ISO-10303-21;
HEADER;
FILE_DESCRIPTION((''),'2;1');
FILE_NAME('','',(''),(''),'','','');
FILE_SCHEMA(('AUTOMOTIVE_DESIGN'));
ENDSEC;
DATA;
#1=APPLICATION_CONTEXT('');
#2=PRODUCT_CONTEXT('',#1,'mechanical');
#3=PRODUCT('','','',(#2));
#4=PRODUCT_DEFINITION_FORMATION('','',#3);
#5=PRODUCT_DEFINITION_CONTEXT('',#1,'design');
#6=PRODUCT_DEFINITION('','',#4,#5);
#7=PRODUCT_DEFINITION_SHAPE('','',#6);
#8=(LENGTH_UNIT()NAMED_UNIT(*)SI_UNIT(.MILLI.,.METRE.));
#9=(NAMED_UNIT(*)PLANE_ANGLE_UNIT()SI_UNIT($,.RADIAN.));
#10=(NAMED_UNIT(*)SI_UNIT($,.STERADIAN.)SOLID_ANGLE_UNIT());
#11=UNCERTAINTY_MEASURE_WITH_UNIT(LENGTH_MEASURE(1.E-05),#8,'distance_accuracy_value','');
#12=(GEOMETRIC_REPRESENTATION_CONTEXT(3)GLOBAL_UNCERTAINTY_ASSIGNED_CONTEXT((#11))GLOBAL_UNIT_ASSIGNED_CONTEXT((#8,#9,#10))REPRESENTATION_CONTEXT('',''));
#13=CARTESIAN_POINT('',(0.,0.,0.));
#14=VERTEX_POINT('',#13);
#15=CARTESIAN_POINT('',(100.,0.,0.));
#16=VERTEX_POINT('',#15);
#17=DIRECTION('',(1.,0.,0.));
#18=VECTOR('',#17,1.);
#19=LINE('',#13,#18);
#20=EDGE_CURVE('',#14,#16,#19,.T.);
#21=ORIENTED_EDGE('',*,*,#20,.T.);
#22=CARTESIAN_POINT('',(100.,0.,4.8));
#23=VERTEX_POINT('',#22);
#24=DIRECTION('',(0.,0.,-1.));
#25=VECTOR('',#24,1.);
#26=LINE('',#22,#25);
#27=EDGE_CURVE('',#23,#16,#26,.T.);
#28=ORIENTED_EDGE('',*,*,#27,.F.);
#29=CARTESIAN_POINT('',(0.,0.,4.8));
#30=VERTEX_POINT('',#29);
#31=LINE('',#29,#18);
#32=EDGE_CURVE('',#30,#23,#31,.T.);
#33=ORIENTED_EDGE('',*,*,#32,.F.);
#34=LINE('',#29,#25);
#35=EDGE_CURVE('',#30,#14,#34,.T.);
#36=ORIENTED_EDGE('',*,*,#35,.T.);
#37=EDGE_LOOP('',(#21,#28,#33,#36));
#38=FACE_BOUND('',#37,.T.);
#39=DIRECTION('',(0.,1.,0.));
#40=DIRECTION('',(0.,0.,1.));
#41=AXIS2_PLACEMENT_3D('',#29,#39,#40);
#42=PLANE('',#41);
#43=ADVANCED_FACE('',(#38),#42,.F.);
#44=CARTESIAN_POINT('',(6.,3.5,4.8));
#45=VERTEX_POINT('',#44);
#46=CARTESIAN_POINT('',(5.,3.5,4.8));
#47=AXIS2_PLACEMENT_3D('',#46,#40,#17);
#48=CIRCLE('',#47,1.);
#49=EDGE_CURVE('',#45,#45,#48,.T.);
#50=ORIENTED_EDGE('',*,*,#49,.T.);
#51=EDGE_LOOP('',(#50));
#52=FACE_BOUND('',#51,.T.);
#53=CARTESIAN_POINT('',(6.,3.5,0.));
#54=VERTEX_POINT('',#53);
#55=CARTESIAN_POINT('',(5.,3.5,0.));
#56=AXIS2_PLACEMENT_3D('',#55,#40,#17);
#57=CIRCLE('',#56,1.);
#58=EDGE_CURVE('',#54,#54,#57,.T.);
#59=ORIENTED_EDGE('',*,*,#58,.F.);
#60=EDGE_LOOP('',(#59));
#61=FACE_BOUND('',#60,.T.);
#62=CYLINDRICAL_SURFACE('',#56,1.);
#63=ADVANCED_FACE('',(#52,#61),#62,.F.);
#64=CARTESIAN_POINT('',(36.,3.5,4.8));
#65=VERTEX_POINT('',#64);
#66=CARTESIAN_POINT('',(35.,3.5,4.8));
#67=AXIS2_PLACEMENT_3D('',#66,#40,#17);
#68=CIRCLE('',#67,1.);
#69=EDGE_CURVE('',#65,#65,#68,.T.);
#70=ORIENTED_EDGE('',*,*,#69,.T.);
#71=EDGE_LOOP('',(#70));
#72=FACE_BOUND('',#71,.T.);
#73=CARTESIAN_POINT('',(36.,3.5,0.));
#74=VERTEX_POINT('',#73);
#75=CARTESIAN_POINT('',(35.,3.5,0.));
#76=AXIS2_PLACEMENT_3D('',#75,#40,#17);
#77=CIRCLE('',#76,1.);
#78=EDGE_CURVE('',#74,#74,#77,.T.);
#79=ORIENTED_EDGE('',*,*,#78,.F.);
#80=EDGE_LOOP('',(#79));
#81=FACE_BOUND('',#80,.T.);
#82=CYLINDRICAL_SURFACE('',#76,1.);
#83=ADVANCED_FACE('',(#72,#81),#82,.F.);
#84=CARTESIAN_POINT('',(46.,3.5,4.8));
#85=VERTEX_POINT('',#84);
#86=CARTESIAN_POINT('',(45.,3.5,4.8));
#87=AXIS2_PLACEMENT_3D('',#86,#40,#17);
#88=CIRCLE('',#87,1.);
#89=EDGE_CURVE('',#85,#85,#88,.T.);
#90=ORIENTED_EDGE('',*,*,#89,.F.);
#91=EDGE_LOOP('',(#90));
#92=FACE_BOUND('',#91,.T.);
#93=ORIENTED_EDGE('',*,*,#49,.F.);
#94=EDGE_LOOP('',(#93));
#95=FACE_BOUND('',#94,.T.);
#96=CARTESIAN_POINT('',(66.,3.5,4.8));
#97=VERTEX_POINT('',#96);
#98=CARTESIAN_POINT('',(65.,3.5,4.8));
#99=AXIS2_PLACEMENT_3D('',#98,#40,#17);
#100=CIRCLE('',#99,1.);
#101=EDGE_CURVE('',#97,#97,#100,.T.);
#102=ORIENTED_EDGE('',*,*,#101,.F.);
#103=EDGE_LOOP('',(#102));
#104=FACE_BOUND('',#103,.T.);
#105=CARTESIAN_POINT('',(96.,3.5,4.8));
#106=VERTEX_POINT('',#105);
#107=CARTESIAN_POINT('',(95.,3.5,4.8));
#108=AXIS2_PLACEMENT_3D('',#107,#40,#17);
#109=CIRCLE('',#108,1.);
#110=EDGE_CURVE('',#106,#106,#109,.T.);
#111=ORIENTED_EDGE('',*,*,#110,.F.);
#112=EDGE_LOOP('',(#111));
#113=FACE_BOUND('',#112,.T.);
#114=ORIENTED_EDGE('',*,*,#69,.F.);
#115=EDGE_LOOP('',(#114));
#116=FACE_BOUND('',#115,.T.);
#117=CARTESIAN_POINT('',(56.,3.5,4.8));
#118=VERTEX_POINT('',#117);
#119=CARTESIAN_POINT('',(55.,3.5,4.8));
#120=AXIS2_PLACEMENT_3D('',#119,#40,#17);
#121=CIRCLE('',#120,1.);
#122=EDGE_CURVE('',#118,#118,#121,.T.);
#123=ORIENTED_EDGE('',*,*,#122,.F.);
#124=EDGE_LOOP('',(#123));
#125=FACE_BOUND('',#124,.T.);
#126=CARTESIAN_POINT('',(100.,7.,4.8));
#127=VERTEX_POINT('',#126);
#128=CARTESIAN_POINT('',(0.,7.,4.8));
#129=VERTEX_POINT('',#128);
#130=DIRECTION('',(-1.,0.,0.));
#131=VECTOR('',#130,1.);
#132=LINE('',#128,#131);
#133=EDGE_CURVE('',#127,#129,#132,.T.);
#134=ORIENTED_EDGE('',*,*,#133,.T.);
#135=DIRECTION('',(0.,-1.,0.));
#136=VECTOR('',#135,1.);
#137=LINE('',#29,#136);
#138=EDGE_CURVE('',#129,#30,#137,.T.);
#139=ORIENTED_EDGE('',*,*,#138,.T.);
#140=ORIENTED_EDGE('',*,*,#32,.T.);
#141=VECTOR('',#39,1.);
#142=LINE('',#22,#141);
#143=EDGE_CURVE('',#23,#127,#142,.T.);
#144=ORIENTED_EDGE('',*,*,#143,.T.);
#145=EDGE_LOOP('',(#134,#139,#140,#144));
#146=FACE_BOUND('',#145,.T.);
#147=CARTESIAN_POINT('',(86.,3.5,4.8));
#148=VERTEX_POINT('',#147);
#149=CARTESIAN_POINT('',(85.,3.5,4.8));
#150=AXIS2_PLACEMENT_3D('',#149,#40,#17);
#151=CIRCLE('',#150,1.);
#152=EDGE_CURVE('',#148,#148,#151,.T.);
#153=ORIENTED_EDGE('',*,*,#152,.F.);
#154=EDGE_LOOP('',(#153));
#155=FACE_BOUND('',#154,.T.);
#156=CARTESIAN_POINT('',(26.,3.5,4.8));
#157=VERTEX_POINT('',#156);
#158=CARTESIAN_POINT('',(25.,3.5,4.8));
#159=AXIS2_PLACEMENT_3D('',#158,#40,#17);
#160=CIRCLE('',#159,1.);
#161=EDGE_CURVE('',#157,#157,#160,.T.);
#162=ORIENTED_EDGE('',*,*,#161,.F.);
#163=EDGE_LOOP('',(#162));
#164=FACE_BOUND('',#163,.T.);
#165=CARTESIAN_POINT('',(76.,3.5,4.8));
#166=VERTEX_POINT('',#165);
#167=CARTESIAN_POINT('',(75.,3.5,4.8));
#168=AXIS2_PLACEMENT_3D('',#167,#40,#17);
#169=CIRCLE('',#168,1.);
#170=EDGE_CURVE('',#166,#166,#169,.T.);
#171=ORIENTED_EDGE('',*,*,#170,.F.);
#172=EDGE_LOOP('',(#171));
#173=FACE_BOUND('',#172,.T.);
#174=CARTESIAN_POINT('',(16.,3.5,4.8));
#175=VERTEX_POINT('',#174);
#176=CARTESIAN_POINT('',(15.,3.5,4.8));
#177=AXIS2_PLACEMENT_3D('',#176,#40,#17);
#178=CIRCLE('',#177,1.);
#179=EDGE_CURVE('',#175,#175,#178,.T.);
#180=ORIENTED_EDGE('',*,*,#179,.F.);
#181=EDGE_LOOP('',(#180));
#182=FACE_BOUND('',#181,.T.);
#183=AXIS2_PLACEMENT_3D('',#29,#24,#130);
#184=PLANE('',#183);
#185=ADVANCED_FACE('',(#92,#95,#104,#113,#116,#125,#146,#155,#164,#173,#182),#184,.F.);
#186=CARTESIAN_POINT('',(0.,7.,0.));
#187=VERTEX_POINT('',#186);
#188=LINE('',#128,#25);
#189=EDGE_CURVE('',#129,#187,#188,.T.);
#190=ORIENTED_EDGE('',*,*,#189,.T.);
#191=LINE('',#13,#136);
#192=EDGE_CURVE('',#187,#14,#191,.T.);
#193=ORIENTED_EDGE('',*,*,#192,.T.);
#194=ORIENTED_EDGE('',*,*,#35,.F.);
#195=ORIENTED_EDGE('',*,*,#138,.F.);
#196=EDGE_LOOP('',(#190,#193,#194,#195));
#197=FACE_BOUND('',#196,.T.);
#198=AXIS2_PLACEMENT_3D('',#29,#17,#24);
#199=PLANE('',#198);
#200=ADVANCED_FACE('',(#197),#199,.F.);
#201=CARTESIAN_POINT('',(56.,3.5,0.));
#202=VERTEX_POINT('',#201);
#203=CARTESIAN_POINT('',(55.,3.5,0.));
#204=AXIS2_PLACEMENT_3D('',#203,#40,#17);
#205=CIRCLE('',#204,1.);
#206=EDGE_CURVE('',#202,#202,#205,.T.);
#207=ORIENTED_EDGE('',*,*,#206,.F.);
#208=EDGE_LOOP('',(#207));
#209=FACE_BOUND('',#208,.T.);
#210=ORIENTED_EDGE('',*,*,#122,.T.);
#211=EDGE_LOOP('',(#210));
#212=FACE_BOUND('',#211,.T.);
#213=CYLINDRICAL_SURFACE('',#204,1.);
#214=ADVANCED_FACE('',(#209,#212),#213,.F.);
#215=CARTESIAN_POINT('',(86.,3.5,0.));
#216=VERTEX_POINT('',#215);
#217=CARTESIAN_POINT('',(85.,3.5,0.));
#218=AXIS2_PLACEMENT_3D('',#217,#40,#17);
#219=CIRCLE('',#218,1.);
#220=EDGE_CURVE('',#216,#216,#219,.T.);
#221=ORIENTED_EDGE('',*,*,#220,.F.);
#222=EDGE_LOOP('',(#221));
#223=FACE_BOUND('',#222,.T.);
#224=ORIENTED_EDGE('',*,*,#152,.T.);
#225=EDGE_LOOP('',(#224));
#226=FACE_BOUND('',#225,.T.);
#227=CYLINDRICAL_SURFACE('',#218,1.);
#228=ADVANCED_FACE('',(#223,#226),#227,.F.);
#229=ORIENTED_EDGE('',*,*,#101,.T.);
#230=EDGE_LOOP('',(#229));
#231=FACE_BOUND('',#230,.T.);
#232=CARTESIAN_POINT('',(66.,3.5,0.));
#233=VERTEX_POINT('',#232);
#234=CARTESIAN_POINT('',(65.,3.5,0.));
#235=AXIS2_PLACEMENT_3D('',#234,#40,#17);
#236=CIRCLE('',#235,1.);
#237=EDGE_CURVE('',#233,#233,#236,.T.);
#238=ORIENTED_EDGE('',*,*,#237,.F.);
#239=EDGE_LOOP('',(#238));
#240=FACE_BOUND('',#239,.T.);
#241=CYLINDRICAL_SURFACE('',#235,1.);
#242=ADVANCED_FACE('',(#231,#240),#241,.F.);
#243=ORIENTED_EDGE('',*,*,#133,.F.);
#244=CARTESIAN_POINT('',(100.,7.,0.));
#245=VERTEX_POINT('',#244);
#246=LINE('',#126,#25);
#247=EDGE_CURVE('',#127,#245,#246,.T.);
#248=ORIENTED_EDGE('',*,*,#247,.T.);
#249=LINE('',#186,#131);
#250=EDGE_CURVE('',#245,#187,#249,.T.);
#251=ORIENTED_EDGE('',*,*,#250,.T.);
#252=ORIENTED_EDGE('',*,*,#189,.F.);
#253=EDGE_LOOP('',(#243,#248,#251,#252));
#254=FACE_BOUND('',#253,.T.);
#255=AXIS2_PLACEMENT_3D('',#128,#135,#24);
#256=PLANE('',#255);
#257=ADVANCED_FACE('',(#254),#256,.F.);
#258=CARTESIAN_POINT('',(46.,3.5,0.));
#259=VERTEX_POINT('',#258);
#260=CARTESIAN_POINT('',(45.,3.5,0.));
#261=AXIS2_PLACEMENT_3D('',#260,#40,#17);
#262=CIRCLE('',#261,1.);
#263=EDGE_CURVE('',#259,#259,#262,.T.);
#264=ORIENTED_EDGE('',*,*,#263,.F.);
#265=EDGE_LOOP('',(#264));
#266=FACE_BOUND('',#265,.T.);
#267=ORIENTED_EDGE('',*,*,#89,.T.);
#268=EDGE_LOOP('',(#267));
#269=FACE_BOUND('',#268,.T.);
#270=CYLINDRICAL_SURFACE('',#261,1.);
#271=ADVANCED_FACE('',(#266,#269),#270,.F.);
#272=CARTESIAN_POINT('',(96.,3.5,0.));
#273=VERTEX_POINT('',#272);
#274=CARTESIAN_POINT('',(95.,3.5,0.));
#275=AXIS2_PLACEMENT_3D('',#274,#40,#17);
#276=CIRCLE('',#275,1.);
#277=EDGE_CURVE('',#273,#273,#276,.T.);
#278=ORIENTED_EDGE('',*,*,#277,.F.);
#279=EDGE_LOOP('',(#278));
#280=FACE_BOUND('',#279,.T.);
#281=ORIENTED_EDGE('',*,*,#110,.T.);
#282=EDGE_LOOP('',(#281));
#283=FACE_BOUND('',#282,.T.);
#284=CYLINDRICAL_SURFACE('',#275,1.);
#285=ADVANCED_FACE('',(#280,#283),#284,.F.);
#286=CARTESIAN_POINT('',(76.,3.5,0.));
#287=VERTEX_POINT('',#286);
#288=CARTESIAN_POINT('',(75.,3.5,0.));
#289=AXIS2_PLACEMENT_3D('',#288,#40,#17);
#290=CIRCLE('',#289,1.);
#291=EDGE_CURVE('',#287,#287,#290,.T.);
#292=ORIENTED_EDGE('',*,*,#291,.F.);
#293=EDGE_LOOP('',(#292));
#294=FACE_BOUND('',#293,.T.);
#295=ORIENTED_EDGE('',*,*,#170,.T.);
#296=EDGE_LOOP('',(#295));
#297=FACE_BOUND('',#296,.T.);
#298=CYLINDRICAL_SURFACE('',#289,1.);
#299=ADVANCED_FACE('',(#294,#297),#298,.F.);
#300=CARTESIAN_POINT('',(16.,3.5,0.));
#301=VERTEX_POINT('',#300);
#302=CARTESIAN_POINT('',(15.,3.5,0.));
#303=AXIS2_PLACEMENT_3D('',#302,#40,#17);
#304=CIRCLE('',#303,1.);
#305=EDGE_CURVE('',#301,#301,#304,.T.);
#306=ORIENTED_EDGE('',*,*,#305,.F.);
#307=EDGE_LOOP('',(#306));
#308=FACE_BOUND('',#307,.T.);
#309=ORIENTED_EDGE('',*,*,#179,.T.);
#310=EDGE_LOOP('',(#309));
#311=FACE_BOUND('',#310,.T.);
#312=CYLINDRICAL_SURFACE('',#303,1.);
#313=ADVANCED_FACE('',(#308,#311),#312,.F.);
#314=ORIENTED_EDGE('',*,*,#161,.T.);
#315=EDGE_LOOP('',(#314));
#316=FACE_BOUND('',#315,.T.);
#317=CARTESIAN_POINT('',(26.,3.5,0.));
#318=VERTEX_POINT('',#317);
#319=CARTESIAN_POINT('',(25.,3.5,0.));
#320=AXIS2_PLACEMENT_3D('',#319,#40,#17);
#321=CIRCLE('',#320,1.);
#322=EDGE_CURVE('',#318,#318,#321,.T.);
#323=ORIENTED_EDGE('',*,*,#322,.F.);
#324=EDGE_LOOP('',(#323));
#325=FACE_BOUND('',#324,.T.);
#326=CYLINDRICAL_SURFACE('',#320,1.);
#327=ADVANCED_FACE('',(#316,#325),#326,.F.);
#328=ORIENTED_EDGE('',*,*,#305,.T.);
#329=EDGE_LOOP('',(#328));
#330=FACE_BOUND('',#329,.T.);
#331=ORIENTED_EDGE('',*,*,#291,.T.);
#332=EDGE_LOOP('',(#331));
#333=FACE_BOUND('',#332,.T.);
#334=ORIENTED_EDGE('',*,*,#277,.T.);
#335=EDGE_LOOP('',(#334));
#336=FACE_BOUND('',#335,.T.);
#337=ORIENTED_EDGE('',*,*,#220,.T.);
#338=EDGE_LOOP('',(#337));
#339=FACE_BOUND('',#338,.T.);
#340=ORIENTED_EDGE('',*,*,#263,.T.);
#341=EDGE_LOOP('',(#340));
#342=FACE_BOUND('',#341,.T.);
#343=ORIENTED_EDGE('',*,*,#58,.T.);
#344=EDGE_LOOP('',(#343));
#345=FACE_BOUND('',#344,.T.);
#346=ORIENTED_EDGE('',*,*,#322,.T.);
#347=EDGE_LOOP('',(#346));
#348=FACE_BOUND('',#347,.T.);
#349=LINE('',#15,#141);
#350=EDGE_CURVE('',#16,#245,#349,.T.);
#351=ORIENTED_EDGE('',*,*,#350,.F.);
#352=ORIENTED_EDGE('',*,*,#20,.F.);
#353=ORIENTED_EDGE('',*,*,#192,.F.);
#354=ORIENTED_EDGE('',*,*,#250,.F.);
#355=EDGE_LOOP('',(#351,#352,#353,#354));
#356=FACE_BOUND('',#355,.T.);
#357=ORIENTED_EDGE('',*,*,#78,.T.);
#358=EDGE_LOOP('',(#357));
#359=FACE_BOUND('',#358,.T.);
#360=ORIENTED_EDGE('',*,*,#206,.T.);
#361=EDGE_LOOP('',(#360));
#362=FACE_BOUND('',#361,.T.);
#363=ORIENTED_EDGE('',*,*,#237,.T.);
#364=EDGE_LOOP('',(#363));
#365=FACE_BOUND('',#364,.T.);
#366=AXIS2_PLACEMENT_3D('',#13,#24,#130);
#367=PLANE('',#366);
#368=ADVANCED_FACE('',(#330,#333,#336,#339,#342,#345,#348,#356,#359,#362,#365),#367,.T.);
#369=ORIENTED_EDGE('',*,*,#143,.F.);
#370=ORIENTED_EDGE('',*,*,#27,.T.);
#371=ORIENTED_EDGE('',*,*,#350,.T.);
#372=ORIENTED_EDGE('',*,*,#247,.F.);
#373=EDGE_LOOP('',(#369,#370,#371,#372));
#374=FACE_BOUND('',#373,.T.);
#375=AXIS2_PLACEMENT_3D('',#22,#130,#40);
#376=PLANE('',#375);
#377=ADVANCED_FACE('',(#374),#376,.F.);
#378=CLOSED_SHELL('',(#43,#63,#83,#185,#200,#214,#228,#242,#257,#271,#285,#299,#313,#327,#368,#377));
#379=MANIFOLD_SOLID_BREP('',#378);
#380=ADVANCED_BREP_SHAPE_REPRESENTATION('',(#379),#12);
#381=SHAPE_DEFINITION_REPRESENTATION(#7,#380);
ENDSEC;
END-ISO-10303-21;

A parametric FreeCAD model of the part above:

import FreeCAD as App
import Part
import Sketcher
from FreeCAD import Vector
Q = App.Units.Quantity


def add_polygon(sketch, points):
    """Adds a closed chain of lines whose ends are joined by coincident constraints."""
    first, n = sketch.GeometryCount, len(points)
    for a, b in zip(points, points[1:] + points[:1]):
        sketch.addGeometry(Part.LineSegment(App.Vector(*a, 0), App.Vector(*b, 0)), False)
    for i in range(n):
        sketch.addConstraint(Sketcher.Constraint("Coincident", first + i, 2, first + (i + 1) % n, 1))

doc = App.newDocument("Part")
body = doc.addObject("PartDesign::Body", "Body")

# Sketch on XY plane
sketch1 = body.newObject("Sketcher::SketchObject", "Sketch")
sketch1.AttachmentSupport = (doc.getObject("XY_Plane"), [""])
sketch1.MapMode = "FlatFace"
add_polygon(sketch1, [(0, 7), (0, 0), (100, 0), (100, 7)])  # lines 0-3
sketch1.addConstraint(Sketcher.Constraint("Vertical", 0))
sketch1.addConstraint(Sketcher.Constraint("Horizontal", 1))
sketch1.addConstraint(Sketcher.Constraint("Vertical", 2))
sketch1.addConstraint(Sketcher.Constraint("Horizontal", 3))
sketch1.addConstraint(Sketcher.Constraint("Coincident", 0, 2, -1, 1))
sketch1.addConstraint(Sketcher.Constraint("DistanceX", 1, 1, 1, 2, Q("100 mm")))
sketch1.addConstraint(Sketcher.Constraint("DistanceY", 0, 2, 0, 1, Q("7 mm")))
pad1 = body.newObject("PartDesign::Pad", "Pad")
pad1.Profile = sketch1
pad1.Length = 4.8

# Sketch on XY plane
sketch2 = body.newObject("Sketcher::SketchObject", "Sketch001")
sketch2.AttachmentSupport = (doc.getObject("XY_Plane"), [""])
sketch2.MapMode = "FlatFace"
sketch2.AttachmentOffset = App.Placement(Vector(0, 0, 4.8), App.Rotation())
sketch2.addGeometry(Part.Circle(Vector(5, 3.5, 0), Vector(0, 0, 1), 1), False)
sketch2.addGeometry(Part.Circle(Vector(15, 3.5, 0), Vector(0, 0, 1), 1), False)
sketch2.addGeometry(Part.Circle(Vector(25, 3.5, 0), Vector(0, 0, 1), 1), False)
sketch2.addGeometry(Part.Circle(Vector(35, 3.5, 0), Vector(0, 0, 1), 1), False)
sketch2.addGeometry(Part.Circle(Vector(45, 3.5, 0), Vector(0, 0, 1), 1), False)
sketch2.addGeometry(Part.Circle(Vector(55, 3.5, 0), Vector(0, 0, 1), 1), False)
sketch2.addGeometry(Part.Circle(Vector(75, 3.5, 0), Vector(0, 0, 1), 1), False)
sketch2.addGeometry(Part.Circle(Vector(85, 3.5, 0), Vector(0, 0, 1), 1), False)
sketch2.addGeometry(Part.Circle(Vector(95, 3.5, 0), Vector(0, 0, 1), 1), False)
sketch2.addGeometry(Part.Circle(Vector(65, 3.5, 0), Vector(0, 0, 1), 1), False)
sketch2.addConstraint(Sketcher.Constraint("Equal", 0, 1))
sketch2.addConstraint(Sketcher.Constraint("Equal", 1, 2))
sketch2.addConstraint(Sketcher.Constraint("Equal", 2, 3))
sketch2.addConstraint(Sketcher.Constraint("Equal", 3, 4))
sketch2.addConstraint(Sketcher.Constraint("Equal", 4, 5))
sketch2.addConstraint(Sketcher.Constraint("Equal", 5, 6))
sketch2.addConstraint(Sketcher.Constraint("Equal", 6, 7))
sketch2.addConstraint(Sketcher.Constraint("Equal", 7, 8))
sketch2.addConstraint(Sketcher.Constraint("Equal", 8, 9))
sketch2.addConstraint(Sketcher.Constraint("Horizontal", 0, 3, 1, 3))
sketch2.addConstraint(Sketcher.Constraint("Horizontal", 1, 3, 2, 3))
sketch2.addConstraint(Sketcher.Constraint("Horizontal", 2, 3, 3, 3))
sketch2.addConstraint(Sketcher.Constraint("Horizontal", 3, 3, 4, 3))
sketch2.addConstraint(Sketcher.Constraint("Horizontal", 4, 3, 5, 3))
sketch2.addConstraint(Sketcher.Constraint("Horizontal", 5, 3, 6, 3))
sketch2.addConstraint(Sketcher.Constraint("Horizontal", 6, 3, 7, 3))
sketch2.addConstraint(Sketcher.Constraint("Horizontal", 7, 3, 8, 3))
sketch2.addConstraint(Sketcher.Constraint("Horizontal", 8, 3, 9, 3))
sketch2.addConstraint(Sketcher.Constraint("Diameter", 0, Q("2 mm")))
sketch2.addConstraint(Sketcher.Constraint("DistanceX", -1, 1, 0, 3, Q("5 mm")))
sketch2.addConstraint(Sketcher.Constraint("DistanceX", -1, 1, 1, 3, Q("15 mm")))
sketch2.addConstraint(Sketcher.Constraint("DistanceX", -1, 1, 2, 3, Q("25 mm")))
sketch2.addConstraint(Sketcher.Constraint("DistanceX", -1, 1, 3, 3, Q("35 mm")))
sketch2.addConstraint(Sketcher.Constraint("DistanceX", -1, 1, 4, 3, Q("45 mm")))
sketch2.addConstraint(Sketcher.Constraint("DistanceX", -1, 1, 5, 3, Q("55 mm")))
sketch2.addConstraint(Sketcher.Constraint("DistanceX", -1, 1, 6, 3, Q("75 mm")))
sketch2.addConstraint(Sketcher.Constraint("DistanceX", -1, 1, 7, 3, Q("85 mm")))
sketch2.addConstraint(Sketcher.Constraint("DistanceX", -1, 1, 8, 3, Q("95 mm")))
sketch2.addConstraint(Sketcher.Constraint("DistanceX", -1, 1, 9, 3, Q("65 mm")))
sketch2.addConstraint(Sketcher.Constraint("DistanceY", -1, 1, 0, 3, Q("3.5 mm")))
pocket1 = body.newObject("PartDesign::Pocket", "Pocket")
pocket1.Profile = sketch2
pocket1.Length = 4.8

doc.recompute()
